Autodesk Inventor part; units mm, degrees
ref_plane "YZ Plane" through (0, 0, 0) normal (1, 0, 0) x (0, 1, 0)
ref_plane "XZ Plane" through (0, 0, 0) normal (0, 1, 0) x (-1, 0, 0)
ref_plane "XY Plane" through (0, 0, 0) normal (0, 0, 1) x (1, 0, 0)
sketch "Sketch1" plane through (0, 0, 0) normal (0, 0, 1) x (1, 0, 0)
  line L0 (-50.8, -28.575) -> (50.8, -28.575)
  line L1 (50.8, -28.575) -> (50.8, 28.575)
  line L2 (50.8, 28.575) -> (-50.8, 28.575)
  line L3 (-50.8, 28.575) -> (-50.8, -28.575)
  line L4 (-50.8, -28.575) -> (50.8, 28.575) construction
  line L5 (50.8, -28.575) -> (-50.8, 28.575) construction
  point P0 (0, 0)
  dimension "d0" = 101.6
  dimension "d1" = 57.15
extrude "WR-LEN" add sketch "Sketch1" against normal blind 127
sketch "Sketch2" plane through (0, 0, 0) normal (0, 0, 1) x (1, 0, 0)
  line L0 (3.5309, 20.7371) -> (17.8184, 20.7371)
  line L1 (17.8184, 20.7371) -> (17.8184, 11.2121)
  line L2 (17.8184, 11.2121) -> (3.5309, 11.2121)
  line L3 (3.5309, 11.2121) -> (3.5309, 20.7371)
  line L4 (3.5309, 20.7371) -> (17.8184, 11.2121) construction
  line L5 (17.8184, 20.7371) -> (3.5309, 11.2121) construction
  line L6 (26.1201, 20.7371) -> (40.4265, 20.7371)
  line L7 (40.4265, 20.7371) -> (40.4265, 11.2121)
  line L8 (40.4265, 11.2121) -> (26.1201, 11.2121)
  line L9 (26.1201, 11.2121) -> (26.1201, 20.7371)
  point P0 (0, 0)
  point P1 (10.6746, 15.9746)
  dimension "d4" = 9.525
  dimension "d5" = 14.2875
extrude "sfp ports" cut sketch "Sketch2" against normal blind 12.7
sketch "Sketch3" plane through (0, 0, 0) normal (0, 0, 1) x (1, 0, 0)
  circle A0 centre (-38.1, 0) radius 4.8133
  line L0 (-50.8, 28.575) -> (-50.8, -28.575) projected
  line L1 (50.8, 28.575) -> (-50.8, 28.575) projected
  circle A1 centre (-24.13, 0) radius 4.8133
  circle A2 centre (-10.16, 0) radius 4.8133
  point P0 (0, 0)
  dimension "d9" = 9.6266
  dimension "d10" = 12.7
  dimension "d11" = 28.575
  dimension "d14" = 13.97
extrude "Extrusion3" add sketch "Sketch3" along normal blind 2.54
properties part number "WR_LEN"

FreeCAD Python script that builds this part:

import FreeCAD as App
import Part
import Sketcher
Q = App.Units.Quantity


def add_polygon(sketch, points):
    """Adds a closed chain of lines whose ends are joined by coincident constraints."""
    first, n = sketch.GeometryCount, len(points)
    for a, b in zip(points, points[1:] + points[:1]):
        sketch.addGeometry(Part.LineSegment(App.Vector(*a, 0), App.Vector(*b, 0)), False)
    for i in range(n):
        sketch.addConstraint(Sketcher.Constraint("Coincident", first + i, 2, first + (i + 1) % n, 1))

doc = App.newDocument("Part")
body = doc.addObject("PartDesign::Body", "Body")

# Sketch on XY plane
sketch1 = body.newObject("Sketcher::SketchObject", "Sketch")
sketch1.AttachmentSupport = (doc.getObject("XY_Plane"), [""])
sketch1.MapMode = "FlatFace"
add_polygon(sketch1, [(-51, 29), (-51, -29), (51, -29), (51, 29)])  # lines 0-3
sketch1.addConstraint(Sketcher.Constraint("Vertical", 0))
sketch1.addConstraint(Sketcher.Constraint("Horizontal", 1))
sketch1.addConstraint(Sketcher.Constraint("Vertical", 2))
sketch1.addConstraint(Sketcher.Constraint("Horizontal", 3))
sketch1.addConstraint(Sketcher.Constraint("Symmetric", 0, 2, 2, 2, -1, 1))
sketch1.addConstraint(Sketcher.Constraint("DistanceX", 1, 1, 1, 2, Q("4 in")))
sketch1.addConstraint(Sketcher.Constraint("DistanceY", 0, 2, 0, 1, Q("2.25 in")))
pad1 = body.newObject("PartDesign::Pad", "Pad")
pad1.Profile = sketch1
pad1.Length = Q("5 in")
pad1.Reversed = True

# Sketch on XY plane
sketch2 = body.newObject("Sketcher::SketchObject", "Sketch001")
sketch2.AttachmentSupport = (doc.getObject("XY_Plane"), [""])
sketch2.MapMode = "FlatFace"
add_polygon(sketch2, [(18, 21), (4, 21), (4, 11), (18, 11)])  # lines 0-3
add_polygon(sketch2, [(40, 21), (26, 21), (26, 11), (40, 11)])  # lines 4-7
sketch2.addConstraint(Sketcher.Constraint("Horizontal", 0))
sketch2.addConstraint(Sketcher.Constraint("Vertical", 1))
sketch2.addConstraint(Sketcher.Constraint("Horizontal", 2))
sketch2.addConstraint(Sketcher.Constraint("Vertical", 3))
sketch2.addConstraint(Sketcher.Constraint("Horizontal", 4))
sketch2.addConstraint(Sketcher.Constraint("Vertical", 5))
sketch2.addConstraint(Sketcher.Constraint("Horizontal", 6))
sketch2.addConstraint(Sketcher.Constraint("Vertical", 7))
sketch2.addConstraint(Sketcher.Constraint("Horizontal", 3, 2, 4, 2))
sketch2.addConstraint(Sketcher.Constraint("Horizontal", 2, 2, 5, 2))
sketch2.addConstraint(Sketcher.Constraint("DistanceX", 0, 2, 0, 1, Q("0.5625 in")))
sketch2.addConstraint(Sketcher.Constraint("DistanceY", 1, 2, 1, 1, Q("0.375 in")))
sketch2.addConstraint(Sketcher.Constraint("DistanceX", -1, 1, 0, 2, Q("0.139 in")))
sketch2.addConstraint(Sketcher.Constraint("DistanceX", 4, 2, 4, 1, 14.3064))
sketch2.addConstraint(Sketcher.Constraint("DistanceX", -1, 1, 6, 2, Q("1.5916 in")))
sketch2.addConstraint(Sketcher.Constraint("DistanceY", -1, 1, 0, 2, 20.737))
pocket1 = body.newObject("PartDesign::Pocket", "Pocket")
pocket1.Profile = sketch2
pocket1.Length = Q("0.5 in")

# Sketch on XY plane
sketch3 = body.newObject("Sketcher::SketchObject", "Sketch002")
sketch3.AttachmentSupport = (doc.getObject("XY_Plane"), [""])
sketch3.MapMode = "FlatFace"
sketch3.addGeometry(Part.Circle(App.Vector(-38.1, 0, 0), App.Vector(0, 0, 1), 4.8), False)
sketch3.addGeometry(Part.Circle(App.Vector(-24.1, 0, 0), App.Vector(0, 0, 1), 4.8), False)
sketch3.addGeometry(Part.Circle(App.Vector(-10.2, 0, 0), App.Vector(0, 0, 1), 4.8), False)
sketch3.addConstraint(Sketcher.Constraint("Equal", 0, 1))
sketch3.addConstraint(Sketcher.Constraint("Equal", 1, 2))
sketch3.addConstraint(Sketcher.Constraint("PointOnObject", 0, 3, -1))
sketch3.addConstraint(Sketcher.Constraint("PointOnObject", 1, 3, -1))
sketch3.addConstraint(Sketcher.Constraint("PointOnObject", 2, 3, -1))
sketch3.addConstraint(Sketcher.Constraint("Diameter", 0, Q("0.379 in")))
sketch3.addConstraint(Sketcher.Constraint("DistanceX", 0, 3, 1, 3, Q("0.55 in")))
sketch3.addConstraint(Sketcher.Constraint("DistanceX", 1, 3, 2, 3, Q("0.55 in")))
sketch3.addConstraint(Sketcher.Constraint("DistanceX", 0, 3, -1, 1, Q("1.5 in")))
pad2 = body.newObject("PartDesign::Pad", "Pad001")
pad2.Profile = sketch3
pad2.Length = Q("0.1 in")

doc.recompute()
